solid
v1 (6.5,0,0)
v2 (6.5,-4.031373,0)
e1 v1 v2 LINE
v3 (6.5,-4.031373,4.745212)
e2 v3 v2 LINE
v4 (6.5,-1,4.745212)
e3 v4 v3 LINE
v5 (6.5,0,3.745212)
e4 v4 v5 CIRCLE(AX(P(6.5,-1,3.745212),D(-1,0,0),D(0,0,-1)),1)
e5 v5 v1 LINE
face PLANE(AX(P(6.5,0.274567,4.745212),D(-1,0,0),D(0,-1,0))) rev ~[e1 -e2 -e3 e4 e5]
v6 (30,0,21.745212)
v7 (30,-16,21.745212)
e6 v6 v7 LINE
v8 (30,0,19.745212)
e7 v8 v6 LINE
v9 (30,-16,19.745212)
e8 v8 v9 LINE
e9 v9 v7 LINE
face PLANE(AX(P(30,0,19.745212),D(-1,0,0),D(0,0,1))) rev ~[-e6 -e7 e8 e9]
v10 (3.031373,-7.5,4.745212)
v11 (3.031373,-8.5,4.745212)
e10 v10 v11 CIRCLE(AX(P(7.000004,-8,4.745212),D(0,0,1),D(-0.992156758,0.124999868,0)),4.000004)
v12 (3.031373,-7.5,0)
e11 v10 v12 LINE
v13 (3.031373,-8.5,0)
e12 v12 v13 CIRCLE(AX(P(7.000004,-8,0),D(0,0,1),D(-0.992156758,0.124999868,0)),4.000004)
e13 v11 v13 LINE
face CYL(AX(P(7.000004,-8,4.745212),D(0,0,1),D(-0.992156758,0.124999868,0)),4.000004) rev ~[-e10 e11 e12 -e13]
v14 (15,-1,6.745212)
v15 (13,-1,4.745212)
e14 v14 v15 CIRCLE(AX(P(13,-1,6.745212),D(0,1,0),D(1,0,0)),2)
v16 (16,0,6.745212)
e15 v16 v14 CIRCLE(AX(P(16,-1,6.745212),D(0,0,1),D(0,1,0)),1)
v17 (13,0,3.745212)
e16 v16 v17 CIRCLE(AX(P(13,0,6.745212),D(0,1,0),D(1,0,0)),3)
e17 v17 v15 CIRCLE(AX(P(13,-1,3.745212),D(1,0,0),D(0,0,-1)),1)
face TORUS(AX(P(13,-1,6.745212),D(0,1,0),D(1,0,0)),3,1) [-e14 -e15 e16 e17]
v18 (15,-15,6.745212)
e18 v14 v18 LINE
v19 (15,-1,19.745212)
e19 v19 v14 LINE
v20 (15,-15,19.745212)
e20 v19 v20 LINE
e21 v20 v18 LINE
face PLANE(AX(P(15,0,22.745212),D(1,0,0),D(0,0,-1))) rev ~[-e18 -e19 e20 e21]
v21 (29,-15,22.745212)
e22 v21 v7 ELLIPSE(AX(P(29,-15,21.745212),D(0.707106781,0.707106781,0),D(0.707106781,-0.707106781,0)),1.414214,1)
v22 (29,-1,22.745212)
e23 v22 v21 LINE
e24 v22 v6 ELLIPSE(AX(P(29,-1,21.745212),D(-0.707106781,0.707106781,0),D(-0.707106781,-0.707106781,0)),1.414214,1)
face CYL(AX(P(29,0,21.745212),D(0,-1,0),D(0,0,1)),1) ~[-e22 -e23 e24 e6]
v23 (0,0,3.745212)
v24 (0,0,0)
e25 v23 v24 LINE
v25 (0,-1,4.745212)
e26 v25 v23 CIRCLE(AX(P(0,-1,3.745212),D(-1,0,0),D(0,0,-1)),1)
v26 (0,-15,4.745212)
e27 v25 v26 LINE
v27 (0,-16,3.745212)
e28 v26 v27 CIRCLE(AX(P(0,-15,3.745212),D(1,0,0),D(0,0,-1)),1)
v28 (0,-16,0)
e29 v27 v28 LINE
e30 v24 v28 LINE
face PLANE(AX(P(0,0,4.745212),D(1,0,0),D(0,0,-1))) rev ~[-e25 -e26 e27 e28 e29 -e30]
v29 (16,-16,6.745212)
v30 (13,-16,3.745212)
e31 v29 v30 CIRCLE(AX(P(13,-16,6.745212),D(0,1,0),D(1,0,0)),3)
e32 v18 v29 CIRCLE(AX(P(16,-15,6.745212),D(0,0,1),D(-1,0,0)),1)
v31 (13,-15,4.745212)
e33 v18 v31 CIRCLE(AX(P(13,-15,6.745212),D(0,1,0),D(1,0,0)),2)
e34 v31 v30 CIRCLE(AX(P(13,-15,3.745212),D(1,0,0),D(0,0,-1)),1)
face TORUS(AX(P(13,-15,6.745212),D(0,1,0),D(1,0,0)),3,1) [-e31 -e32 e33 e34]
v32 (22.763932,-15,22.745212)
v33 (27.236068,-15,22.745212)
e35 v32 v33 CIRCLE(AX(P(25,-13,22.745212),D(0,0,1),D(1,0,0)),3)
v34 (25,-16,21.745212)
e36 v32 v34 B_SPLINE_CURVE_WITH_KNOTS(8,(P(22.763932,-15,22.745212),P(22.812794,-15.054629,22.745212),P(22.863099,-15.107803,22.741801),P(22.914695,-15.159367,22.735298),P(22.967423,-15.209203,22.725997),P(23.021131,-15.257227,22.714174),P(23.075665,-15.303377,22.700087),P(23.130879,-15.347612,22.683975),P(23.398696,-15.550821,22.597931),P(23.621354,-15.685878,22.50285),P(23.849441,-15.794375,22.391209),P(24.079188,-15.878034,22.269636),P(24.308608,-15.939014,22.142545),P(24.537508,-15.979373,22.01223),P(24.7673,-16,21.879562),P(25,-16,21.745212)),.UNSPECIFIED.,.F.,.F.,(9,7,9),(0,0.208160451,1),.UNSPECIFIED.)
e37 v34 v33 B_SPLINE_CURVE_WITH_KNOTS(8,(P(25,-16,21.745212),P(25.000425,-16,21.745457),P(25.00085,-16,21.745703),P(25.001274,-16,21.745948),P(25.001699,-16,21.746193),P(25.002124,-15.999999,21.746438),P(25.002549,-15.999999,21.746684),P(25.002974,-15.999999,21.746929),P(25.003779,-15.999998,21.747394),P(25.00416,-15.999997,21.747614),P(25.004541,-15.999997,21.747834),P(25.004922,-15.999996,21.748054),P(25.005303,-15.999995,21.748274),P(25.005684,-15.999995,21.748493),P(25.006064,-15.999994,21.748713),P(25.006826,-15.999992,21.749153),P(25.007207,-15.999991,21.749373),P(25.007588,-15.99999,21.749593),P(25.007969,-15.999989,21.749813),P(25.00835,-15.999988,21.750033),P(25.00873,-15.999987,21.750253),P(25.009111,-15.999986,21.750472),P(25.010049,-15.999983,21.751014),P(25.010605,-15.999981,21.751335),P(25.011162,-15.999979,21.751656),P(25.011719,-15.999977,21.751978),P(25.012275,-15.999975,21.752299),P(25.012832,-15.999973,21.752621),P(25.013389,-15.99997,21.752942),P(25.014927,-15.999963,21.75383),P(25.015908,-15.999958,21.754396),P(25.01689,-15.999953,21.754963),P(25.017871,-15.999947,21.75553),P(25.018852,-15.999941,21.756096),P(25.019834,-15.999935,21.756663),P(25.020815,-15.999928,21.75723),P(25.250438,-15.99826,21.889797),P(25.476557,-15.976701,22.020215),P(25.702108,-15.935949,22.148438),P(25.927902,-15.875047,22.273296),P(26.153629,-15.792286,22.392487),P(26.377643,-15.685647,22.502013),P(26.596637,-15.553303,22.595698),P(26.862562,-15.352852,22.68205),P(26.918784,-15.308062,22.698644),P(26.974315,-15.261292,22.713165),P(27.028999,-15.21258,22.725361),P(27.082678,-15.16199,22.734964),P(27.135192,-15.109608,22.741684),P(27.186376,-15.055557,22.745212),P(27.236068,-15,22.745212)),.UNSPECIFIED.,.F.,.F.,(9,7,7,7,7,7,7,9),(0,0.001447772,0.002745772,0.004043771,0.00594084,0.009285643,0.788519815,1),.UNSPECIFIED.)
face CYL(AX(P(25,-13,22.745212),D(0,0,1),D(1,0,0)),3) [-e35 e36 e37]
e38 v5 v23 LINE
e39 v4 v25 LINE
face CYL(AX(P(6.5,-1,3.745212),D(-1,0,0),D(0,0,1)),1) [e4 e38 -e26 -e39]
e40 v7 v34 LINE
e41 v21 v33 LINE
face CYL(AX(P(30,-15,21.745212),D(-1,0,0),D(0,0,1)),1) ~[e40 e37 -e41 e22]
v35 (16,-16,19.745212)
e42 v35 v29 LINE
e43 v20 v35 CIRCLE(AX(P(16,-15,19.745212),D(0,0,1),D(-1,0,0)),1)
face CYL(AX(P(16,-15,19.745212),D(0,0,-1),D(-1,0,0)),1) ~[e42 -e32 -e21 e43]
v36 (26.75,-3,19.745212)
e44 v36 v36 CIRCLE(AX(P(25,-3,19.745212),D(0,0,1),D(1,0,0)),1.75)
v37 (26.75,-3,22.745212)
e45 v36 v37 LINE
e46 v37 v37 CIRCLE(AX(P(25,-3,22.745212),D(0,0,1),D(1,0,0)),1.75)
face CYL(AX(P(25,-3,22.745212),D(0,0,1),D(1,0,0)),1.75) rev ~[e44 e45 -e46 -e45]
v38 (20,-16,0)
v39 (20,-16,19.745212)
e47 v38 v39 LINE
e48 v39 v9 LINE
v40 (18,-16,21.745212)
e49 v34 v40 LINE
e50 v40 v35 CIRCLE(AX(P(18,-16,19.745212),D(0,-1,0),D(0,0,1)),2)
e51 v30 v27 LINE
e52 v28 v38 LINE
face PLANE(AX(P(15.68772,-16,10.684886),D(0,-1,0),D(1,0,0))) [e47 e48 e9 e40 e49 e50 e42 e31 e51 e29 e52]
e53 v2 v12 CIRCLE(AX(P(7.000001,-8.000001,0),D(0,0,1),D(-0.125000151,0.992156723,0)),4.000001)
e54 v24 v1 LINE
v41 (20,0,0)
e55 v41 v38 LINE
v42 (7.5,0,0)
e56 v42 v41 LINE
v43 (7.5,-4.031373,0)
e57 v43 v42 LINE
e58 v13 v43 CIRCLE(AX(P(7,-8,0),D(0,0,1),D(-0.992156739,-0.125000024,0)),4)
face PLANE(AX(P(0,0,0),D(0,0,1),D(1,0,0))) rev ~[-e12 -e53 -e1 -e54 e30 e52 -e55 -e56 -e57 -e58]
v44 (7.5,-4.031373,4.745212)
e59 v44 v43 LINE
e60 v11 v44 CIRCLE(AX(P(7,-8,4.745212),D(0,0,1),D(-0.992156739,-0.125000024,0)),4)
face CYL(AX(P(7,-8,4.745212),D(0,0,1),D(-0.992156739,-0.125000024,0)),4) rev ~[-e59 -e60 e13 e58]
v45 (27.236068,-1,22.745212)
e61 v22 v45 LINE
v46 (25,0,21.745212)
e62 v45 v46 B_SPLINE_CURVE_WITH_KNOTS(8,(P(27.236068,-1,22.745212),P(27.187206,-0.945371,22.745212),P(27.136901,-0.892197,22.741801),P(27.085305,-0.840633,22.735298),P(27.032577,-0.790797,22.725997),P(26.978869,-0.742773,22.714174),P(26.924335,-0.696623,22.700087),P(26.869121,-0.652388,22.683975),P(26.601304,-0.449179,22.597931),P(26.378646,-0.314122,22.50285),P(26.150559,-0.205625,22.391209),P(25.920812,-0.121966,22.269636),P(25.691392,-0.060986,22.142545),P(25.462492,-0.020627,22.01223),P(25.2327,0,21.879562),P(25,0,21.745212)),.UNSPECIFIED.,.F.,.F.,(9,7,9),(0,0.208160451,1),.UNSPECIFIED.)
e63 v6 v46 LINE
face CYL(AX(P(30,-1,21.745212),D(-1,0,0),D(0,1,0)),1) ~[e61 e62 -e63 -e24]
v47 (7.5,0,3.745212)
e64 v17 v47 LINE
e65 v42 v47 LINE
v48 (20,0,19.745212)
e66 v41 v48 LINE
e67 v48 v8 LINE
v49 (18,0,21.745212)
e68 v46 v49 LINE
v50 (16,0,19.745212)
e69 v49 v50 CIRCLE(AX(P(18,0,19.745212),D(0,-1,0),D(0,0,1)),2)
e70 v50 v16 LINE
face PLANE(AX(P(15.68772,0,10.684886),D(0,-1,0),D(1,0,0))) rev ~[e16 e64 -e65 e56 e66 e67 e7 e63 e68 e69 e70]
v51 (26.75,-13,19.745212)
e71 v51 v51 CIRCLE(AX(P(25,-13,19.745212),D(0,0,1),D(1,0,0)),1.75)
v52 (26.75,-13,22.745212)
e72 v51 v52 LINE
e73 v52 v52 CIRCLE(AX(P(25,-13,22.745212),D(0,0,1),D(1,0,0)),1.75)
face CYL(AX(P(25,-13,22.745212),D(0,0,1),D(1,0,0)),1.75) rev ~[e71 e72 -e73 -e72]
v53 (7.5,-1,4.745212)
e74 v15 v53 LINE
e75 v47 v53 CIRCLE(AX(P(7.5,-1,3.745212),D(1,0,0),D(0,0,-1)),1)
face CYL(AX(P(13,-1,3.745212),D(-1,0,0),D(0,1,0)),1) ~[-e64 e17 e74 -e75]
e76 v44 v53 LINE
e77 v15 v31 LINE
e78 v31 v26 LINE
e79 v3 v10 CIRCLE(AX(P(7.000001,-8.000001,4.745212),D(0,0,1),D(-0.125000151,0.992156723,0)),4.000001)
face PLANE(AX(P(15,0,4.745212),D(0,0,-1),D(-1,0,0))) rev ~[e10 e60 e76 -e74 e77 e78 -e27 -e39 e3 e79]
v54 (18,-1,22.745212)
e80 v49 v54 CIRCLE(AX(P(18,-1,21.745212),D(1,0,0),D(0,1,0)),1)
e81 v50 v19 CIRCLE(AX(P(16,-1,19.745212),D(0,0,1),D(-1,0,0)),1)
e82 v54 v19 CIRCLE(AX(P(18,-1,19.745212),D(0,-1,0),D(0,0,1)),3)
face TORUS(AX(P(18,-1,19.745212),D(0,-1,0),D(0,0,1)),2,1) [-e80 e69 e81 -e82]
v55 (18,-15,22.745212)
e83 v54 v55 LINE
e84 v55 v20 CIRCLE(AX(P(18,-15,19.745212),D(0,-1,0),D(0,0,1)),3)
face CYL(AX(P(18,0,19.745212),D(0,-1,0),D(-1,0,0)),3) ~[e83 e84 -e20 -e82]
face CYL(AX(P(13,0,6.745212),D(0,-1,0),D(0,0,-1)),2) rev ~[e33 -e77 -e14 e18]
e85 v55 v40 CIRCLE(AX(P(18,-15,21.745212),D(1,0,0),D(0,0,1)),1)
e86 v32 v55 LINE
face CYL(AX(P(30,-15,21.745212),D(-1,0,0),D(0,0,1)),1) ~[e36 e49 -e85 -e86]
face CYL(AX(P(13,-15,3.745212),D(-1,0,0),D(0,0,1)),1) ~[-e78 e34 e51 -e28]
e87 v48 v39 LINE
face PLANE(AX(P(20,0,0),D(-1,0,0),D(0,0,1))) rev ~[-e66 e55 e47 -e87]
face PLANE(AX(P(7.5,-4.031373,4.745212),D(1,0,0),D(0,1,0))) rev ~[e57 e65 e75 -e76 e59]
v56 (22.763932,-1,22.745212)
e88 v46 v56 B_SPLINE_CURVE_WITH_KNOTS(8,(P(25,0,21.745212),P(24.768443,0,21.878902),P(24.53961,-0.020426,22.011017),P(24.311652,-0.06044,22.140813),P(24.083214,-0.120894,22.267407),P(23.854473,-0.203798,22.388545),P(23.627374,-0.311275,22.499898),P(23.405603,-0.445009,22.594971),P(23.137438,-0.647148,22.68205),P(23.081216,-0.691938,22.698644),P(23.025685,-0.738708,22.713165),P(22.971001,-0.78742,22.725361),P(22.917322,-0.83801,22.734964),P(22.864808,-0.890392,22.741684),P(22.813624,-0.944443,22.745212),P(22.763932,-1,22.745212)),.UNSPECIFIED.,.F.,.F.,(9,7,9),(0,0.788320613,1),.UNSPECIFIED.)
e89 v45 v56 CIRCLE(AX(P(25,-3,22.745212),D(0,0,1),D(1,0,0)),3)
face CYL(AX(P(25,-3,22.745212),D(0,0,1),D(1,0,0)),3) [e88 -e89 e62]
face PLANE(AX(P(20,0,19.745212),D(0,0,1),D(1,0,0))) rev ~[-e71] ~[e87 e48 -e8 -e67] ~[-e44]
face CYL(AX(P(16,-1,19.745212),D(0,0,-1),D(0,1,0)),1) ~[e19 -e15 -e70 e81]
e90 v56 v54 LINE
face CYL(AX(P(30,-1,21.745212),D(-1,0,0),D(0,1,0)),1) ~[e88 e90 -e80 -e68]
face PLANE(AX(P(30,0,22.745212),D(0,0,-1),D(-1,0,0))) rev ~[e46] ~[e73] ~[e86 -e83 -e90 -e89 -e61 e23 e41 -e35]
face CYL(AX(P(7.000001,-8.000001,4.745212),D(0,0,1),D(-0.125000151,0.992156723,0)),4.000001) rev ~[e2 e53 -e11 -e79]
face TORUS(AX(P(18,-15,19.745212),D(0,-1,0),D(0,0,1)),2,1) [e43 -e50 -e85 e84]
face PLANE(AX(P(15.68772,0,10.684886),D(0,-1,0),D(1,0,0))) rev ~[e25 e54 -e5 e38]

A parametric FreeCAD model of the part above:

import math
import FreeCAD as App
import Part
import Sketcher
from FreeCAD import Vector
Q = App.Units.Quantity


def edges_at(feature, points):
    """Names of the edges that pass closest to the given points."""
    edges = feature.Shape.Edges
    near = lambda p: min(range(len(edges)), key=lambda i: edges[i].distToShape(Part.Vertex(*p))[0])
    return sorted({f"Edge{near(p) + 1}" for p in points})


def add_polygon(sketch, points):
    """Adds a closed chain of lines whose ends are joined by coincident constraints."""
    first, n = sketch.GeometryCount, len(points)
    for a, b in zip(points, points[1:] + points[:1]):
        sketch.addGeometry(Part.LineSegment(App.Vector(*a, 0), App.Vector(*b, 0)), False)
    for i in range(n):
        sketch.addConstraint(Sketcher.Constraint("Coincident", first + i, 2, first + (i + 1) % n, 1))

doc = App.newDocument("Part")
params = doc.addObject("Spreadsheet::Sheet", "Params")
for row, (alias, value) in enumerate([
    ("sketch1_width", "20 mm"),
    ("sketch1_width2", "10 mm"),
    ("sketch1_height", "3 mm"),
    ("sketch1_height2", "18 mm"),
    ("pad1_length", "16 mm"),
    ("sketch2_diameter", "3.5 mm"),
    ("pocket1_length", "25 mm"),
    ("sketch3_radius", "4 mm"),
    ("sketch3_width", "1 mm"),
    ("pocket2_length", "25 mm"),
    ("fillet_radius", "2 mm"),
    ("fillet2_radius", "3 mm"),
    ("fillet3_radius", "1 mm"),
    ("sketch4_diameter", "6 mm"),
    ("sketch4_diameter2", "3.5 mm"),
    ("pad2_length", "2 mm"),
    ("fillet4_radius", "1 mm"),
], start=1):
    params.set(f"A{row}", alias)
    params.set(f"B{row}", "=" + value)
    params.setAlias(f"B{row}", alias)

body = doc.addObject("PartDesign::Body", "Body")

# Sketch on XZ plane
sketch1 = body.newObject("Sketcher::SketchObject", "Sketch")
sketch1.AttachmentSupport = (doc.getObject("XZ_Plane"), [""])
sketch1.MapMode = "FlatFace"
add_polygon(sketch1, [(0, 4.7), (0, 0), (20, 0), (20, 19.7), (30, 19.7), (30, 22.7), (15, 22.7), (15, 4.7)])  # lines 0-7
sketch1.addConstraint(Sketcher.Constraint("Vertical", 0))
sketch1.addConstraint(Sketcher.Constraint("Horizontal", 1))
sketch1.addConstraint(Sketcher.Constraint("Vertical", 2))
sketch1.addConstraint(Sketcher.Constraint("Horizontal", 3))
sketch1.addConstraint(Sketcher.Constraint("Vertical", 4))
sketch1.addConstraint(Sketcher.Constraint("Horizontal", 5))
sketch1.addConstraint(Sketcher.Constraint("Vertical", 6))
sketch1.addConstraint(Sketcher.Constraint("Horizontal", 7))
sketch1.addConstraint(Sketcher.Constraint("Coincident", 0, 2, -1, 1))
sketch1.addConstraint(Sketcher.Constraint("Equal", 5, 7))
sketch1.addConstraint(Sketcher.Constraint("DistanceX", 1, 1, 1, 2, Q("20 mm")))
sketch1.addConstraint(Sketcher.Constraint("DistanceX", 3, 1, 3, 2, Q("10 mm")))
sketch1.addConstraint(Sketcher.Constraint("DistanceY", 4, 1, 4, 2, Q("3 mm")))
sketch1.addConstraint(Sketcher.Constraint("DistanceY", 6, 2, 6, 1, Q("18 mm")))
sketch1.addConstraint(Sketcher.Constraint("DistanceY", 2, 1, 2, 2, Q("19.745212 mm")))
sketch1.setExpression("Constraints[18]", "Params.sketch1_width")
sketch1.setExpression("Constraints[19]", "Params.sketch1_width2")
sketch1.setExpression("Constraints[20]", "Params.sketch1_height")
sketch1.setExpression("Constraints[21]", "Params.sketch1_height2")
pad1 = body.newObject("PartDesign::Pad", "Pad")
pad1.Profile = sketch1
pad1.setExpression("Length", "Params.pad1_length")

# Sketch on XY plane
sketch2 = body.newObject("Sketcher::SketchObject", "Sketch001")
sketch2.AttachmentSupport = (doc.getObject("XY_Plane"), [""])
sketch2.MapMode = "FlatFace"
sketch2.AttachmentOffset = App.Placement(Vector(0, 0, 22.745212), App.Rotation())
sketch2.addGeometry(Part.Circle(Vector(25, -3, 0), Vector(0, 0, 1), 1.8), False)
sketch2.addGeometry(Part.Circle(Vector(25, -13, 0), Vector(0, 0, 1), 1.8), False)
sketch2.addConstraint(Sketcher.Constraint("Equal", 0, 1))
sketch2.addConstraint(Sketcher.Constraint("Vertical", 0, 3, 1, 3))
sketch2.addConstraint(Sketcher.Constraint("Diameter", 0, Q("3.5 mm")))
sketch2.addConstraint(Sketcher.Constraint("DistanceX", -1, 1, 0, 3, Q("25 mm")))
sketch2.addConstraint(Sketcher.Constraint("DistanceY", 0, 3, -1, 1, Q("3 mm")))
sketch2.addConstraint(Sketcher.Constraint("DistanceY", 1, 3, -1, 1, Q("13 mm")))
sketch2.setExpression("Constraints[2]", "Params.sketch2_diameter")
pocket1 = body.newObject("PartDesign::Pocket", "Pocket")
pocket1.Profile = sketch2
pocket1.setExpression("Length", "Params.pocket1_length")

# Sketch on XY plane
sketch3 = body.newObject("Sketcher::SketchObject", "Sketch002")
sketch3.AttachmentSupport = (doc.getObject("XY_Plane"), [""])
sketch3.MapMode = "FlatFace"
sketch3.AttachmentOffset = App.Placement(Vector(0, 0, 4.745212), App.Rotation())
sketch3.addGeometry(Part.ArcOfCircle(Part.Circle(Vector(7, -8, 0), Vector(0, 0, 1), 4), math.radians(172.82), math.radians(187.18)), False)
sketch3.addGeometry(Part.ArcOfCircle(Part.Circle(Vector(7, -8, 0), Vector(0, 0, 1), 4), math.radians(-173), math.radians(83)), False)
sketch3.addGeometry(Part.LineSegment(Vector(7.5, -4, 0), Vector(7.5, 0.3, 0)), False)
sketch3.addGeometry(Part.LineSegment(Vector(7.5, 0.3, 0), Vector(6.5, 0.3, 0)), False)
sketch3.addGeometry(Part.LineSegment(Vector(6.5, 0.3, 0), Vector(6.5, -4, 0)), False)
sketch3.addGeometry(Part.ArcOfCircle(Part.Circle(Vector(7, -8, 0), Vector(0, 0, 1), 4), math.radians(97), math.radians(173)), False)
sketch3.addConstraint(Sketcher.Constraint("Tangent", 0, 2, 1, 1))
sketch3.addConstraint(Sketcher.Constraint("Coincident", 1, 2, 2, 1))
sketch3.addConstraint(Sketcher.Constraint("Coincident", 2, 2, 3, 1))
sketch3.addConstraint(Sketcher.Constraint("Coincident", 3, 2, 4, 1))
sketch3.addConstraint(Sketcher.Constraint("Coincident", 4, 2, 5, 1))
sketch3.addConstraint(Sketcher.Constraint("Tangent", 5, 2, 0, 1))
sketch3.addConstraint(Sketcher.Constraint("Vertical", 2))
sketch3.addConstraint(Sketcher.Constraint("Horizontal", 3))
sketch3.addConstraint(Sketcher.Constraint("Vertical", 4))
sketch3.addConstraint(Sketcher.Constraint("Equal", 1, 5))
sketch3.addConstraint(Sketcher.Constraint("Horizontal", 1, 2, 4, 2))
sketch3.addConstraint(Sketcher.Constraint("Vertical", 0, 2, 5, 2))
sketch3.addConstraint(Sketcher.Constraint("Radius", 1, Q("4 mm")))
sketch3.addConstraint(Sketcher.Constraint("DistanceX", 3, 2, 3, 1, Q("1 mm")))
sketch3.addConstraint(Sketcher.Constraint("DistanceY", 0, 3, -1, 1, Q("8 mm")))
sketch3.addConstraint(Sketcher.Constraint("DistanceX", -1, 1, 1, 3, Q("7 mm")))
sketch3.addConstraint(Sketcher.Constraint("DistanceY", 1, 3, -1, 1, Q("8 mm")))
sketch3.addConstraint(Sketcher.Constraint("DistanceY", 0, 2, 5, 2, Q("1 mm")))
sketch3.addConstraint(Sketcher.Constraint("DistanceY", 2, 1, 2, 2, Q("4.30594 mm")))
sketch3.setExpression("Constraints[12]", "Params.sketch3_radius")
sketch3.setExpression("Constraints[13]", "Params.sketch3_width")
pocket2 = body.newObject("PartDesign::Pocket", "Pocket001")
pocket2.Profile = sketch3
pocket2.setExpression("Length", "Params.pocket2_length")
doc.recompute()

fillet = body.newObject("PartDesign::Fillet", "Fillet")
fillet.Base = (pocket2, edges_at(pocket2, [(15, -8, 4.745)]))
fillet.setExpression("Radius", "Params.fillet_radius")
doc.recompute()

fillet2 = body.newObject("PartDesign::Fillet", "Fillet001")
fillet2.Base = (fillet, edges_at(fillet, [(15, -8, 22.745)]))
fillet2.setExpression("Radius", "Params.fillet2_radius")
doc.recompute()

fillet3 = body.newObject("PartDesign::Fillet", "Fillet002")
fillet3.Base = (fillet2, edges_at(fillet2, [(30, -8, 22.745), (24, -16, 22.745), (24, 0, 22.745)]))
fillet3.setExpression("Radius", "Params.fillet3_radius")

# Sketch on XY plane
sketch4 = body.newObject("Sketcher::SketchObject", "Sketch003")
sketch4.AttachmentSupport = (doc.getObject("XY_Plane"), [""])
sketch4.MapMode = "FlatFace"
sketch4.AttachmentOffset = App.Placement(Vector(0, 0, 22.745212), App.Rotation())
sketch4.addGeometry(Part.Circle(Vector(25, -3, 0), Vector(0, 0, 1), 3), False)
sketch4.addGeometry(Part.Circle(Vector(25, -3, 0), Vector(0, 0, 1), 1.8), False)
sketch4.addGeometry(Part.Circle(Vector(25, -13, 0), Vector(0, 0, 1), 3), False)
sketch4.addGeometry(Part.Circle(Vector(25, -13, 0), Vector(0, 0, 1), 1.8), False)
sketch4.addConstraint(Sketcher.Constraint("Coincident", 1, 3, 0, 3))
sketch4.addConstraint(Sketcher.Constraint("Coincident", 3, 3, 2, 3))
sketch4.addConstraint(Sketcher.Constraint("Equal", 0, 2))
sketch4.addConstraint(Sketcher.Constraint("Equal", 1, 3))
sketch4.addConstraint(Sketcher.Constraint("Vertical", 1, 3, 2, 3))
sketch4.addConstraint(Sketcher.Constraint("Diameter", 0, Q("6 mm")))
sketch4.addConstraint(Sketcher.Constraint("Diameter", 1, Q("3.5 mm")))
sketch4.addConstraint(Sketcher.Constraint("DistanceX", -1, 1, 0, 3, Q("25 mm")))
sketch4.addConstraint(Sketcher.Constraint("DistanceY", 0, 3, -1, 1, Q("3 mm")))
sketch4.addConstraint(Sketcher.Constraint("DistanceY", 2, 3, -1, 1, Q("13 mm")))
sketch4.setExpression("Constraints[5]", "Params.sketch4_diameter")
sketch4.setExpression("Constraints[6]", "Params.sketch4_diameter2")
pad2 = body.newObject("PartDesign::Pad", "Pad001")
pad2.Profile = sketch4
pad2.setExpression("Length", "Params.pad2_length")
pad2.Reversed = True
doc.recompute()

fillet4 = body.newObject("PartDesign::Fillet", "Fillet003")
fillet4.Base = (pad2, edges_at(pad2, [(3.25, 0, 4.745)]))
fillet4.setExpression("Radius", "Params.fillet4_radius")

doc.recompute()
